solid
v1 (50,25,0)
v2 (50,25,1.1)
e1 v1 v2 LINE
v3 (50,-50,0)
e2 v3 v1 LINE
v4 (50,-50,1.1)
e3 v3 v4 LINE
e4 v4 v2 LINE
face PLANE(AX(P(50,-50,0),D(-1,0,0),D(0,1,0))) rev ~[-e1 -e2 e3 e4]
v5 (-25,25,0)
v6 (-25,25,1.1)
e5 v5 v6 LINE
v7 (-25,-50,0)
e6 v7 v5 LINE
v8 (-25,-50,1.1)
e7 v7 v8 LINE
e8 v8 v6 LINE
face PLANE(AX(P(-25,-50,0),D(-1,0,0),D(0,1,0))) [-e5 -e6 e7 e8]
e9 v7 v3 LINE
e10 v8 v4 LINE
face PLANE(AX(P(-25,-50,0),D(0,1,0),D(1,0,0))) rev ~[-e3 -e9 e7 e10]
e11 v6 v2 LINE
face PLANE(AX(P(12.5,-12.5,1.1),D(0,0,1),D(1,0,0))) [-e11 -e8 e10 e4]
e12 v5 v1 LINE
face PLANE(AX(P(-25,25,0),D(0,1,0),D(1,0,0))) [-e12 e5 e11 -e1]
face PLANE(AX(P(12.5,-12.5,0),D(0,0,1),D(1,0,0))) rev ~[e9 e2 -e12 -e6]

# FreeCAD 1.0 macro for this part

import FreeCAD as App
import Part
import Sketcher
Q = App.Units.Quantity


def add_polygon(sketch, points):
    """Adds a closed chain of lines whose ends are joined by coincident constraints."""
    first, n = sketch.GeometryCount, len(points)
    for a, b in zip(points, points[1:] + points[:1]):
        sketch.addGeometry(Part.LineSegment(App.Vector(*a, 0), App.Vector(*b, 0)), False)
    for i in range(n):
        sketch.addConstraint(Sketcher.Constraint("Coincident", first + i, 2, first + (i + 1) % n, 1))

doc = App.newDocument("Part")
params = doc.addObject("Spreadsheet::Sheet", "Params")
for row, (alias, value) in enumerate([
    ("sketch1_width", "75 mm"),
    ("pad1_length", "1.1 mm"),
], start=1):
    params.set(f"A{row}", alias)
    params.set(f"B{row}", "=" + value)
    params.setAlias(f"B{row}", alias)

body = doc.addObject("PartDesign::Body", "Body")

sketch1 = body.newObject("Sketcher::SketchObject", "Sketch")
sketch1.AttachmentSupport = (doc.getObject("XY_Plane"), [""])
sketch1.MapMode = "FlatFace"
add_polygon(sketch1, [(-25, 25), (-25, -50), (50, -50), (50, 25)])
sketch1.addConstraint([
    Sketcher.Constraint("Vertical", 0),
    Sketcher.Constraint("Horizontal", 1),
    Sketcher.Constraint("Vertical", 2),
    Sketcher.Constraint("Horizontal", 3),
    Sketcher.Constraint("Equal", 3, 0),
    Sketcher.Constraint("DistanceX", 1, 1, 1, 2, Q("75 mm")),
    Sketcher.Constraint("DistanceX", 0, 2, -1, 1, Q("25 mm")),
    Sketcher.Constraint("DistanceY", 0, 2, -1, 1, Q("50 mm")),
])
sketch1.setExpression("Constraints[9]", "Params.sketch1_width")
pad1 = body.newObject("PartDesign::Pad", "Pad")
pad1.Profile = sketch1
pad1.setExpression("Length", "Params.pad1_length")

doc.recompute()
